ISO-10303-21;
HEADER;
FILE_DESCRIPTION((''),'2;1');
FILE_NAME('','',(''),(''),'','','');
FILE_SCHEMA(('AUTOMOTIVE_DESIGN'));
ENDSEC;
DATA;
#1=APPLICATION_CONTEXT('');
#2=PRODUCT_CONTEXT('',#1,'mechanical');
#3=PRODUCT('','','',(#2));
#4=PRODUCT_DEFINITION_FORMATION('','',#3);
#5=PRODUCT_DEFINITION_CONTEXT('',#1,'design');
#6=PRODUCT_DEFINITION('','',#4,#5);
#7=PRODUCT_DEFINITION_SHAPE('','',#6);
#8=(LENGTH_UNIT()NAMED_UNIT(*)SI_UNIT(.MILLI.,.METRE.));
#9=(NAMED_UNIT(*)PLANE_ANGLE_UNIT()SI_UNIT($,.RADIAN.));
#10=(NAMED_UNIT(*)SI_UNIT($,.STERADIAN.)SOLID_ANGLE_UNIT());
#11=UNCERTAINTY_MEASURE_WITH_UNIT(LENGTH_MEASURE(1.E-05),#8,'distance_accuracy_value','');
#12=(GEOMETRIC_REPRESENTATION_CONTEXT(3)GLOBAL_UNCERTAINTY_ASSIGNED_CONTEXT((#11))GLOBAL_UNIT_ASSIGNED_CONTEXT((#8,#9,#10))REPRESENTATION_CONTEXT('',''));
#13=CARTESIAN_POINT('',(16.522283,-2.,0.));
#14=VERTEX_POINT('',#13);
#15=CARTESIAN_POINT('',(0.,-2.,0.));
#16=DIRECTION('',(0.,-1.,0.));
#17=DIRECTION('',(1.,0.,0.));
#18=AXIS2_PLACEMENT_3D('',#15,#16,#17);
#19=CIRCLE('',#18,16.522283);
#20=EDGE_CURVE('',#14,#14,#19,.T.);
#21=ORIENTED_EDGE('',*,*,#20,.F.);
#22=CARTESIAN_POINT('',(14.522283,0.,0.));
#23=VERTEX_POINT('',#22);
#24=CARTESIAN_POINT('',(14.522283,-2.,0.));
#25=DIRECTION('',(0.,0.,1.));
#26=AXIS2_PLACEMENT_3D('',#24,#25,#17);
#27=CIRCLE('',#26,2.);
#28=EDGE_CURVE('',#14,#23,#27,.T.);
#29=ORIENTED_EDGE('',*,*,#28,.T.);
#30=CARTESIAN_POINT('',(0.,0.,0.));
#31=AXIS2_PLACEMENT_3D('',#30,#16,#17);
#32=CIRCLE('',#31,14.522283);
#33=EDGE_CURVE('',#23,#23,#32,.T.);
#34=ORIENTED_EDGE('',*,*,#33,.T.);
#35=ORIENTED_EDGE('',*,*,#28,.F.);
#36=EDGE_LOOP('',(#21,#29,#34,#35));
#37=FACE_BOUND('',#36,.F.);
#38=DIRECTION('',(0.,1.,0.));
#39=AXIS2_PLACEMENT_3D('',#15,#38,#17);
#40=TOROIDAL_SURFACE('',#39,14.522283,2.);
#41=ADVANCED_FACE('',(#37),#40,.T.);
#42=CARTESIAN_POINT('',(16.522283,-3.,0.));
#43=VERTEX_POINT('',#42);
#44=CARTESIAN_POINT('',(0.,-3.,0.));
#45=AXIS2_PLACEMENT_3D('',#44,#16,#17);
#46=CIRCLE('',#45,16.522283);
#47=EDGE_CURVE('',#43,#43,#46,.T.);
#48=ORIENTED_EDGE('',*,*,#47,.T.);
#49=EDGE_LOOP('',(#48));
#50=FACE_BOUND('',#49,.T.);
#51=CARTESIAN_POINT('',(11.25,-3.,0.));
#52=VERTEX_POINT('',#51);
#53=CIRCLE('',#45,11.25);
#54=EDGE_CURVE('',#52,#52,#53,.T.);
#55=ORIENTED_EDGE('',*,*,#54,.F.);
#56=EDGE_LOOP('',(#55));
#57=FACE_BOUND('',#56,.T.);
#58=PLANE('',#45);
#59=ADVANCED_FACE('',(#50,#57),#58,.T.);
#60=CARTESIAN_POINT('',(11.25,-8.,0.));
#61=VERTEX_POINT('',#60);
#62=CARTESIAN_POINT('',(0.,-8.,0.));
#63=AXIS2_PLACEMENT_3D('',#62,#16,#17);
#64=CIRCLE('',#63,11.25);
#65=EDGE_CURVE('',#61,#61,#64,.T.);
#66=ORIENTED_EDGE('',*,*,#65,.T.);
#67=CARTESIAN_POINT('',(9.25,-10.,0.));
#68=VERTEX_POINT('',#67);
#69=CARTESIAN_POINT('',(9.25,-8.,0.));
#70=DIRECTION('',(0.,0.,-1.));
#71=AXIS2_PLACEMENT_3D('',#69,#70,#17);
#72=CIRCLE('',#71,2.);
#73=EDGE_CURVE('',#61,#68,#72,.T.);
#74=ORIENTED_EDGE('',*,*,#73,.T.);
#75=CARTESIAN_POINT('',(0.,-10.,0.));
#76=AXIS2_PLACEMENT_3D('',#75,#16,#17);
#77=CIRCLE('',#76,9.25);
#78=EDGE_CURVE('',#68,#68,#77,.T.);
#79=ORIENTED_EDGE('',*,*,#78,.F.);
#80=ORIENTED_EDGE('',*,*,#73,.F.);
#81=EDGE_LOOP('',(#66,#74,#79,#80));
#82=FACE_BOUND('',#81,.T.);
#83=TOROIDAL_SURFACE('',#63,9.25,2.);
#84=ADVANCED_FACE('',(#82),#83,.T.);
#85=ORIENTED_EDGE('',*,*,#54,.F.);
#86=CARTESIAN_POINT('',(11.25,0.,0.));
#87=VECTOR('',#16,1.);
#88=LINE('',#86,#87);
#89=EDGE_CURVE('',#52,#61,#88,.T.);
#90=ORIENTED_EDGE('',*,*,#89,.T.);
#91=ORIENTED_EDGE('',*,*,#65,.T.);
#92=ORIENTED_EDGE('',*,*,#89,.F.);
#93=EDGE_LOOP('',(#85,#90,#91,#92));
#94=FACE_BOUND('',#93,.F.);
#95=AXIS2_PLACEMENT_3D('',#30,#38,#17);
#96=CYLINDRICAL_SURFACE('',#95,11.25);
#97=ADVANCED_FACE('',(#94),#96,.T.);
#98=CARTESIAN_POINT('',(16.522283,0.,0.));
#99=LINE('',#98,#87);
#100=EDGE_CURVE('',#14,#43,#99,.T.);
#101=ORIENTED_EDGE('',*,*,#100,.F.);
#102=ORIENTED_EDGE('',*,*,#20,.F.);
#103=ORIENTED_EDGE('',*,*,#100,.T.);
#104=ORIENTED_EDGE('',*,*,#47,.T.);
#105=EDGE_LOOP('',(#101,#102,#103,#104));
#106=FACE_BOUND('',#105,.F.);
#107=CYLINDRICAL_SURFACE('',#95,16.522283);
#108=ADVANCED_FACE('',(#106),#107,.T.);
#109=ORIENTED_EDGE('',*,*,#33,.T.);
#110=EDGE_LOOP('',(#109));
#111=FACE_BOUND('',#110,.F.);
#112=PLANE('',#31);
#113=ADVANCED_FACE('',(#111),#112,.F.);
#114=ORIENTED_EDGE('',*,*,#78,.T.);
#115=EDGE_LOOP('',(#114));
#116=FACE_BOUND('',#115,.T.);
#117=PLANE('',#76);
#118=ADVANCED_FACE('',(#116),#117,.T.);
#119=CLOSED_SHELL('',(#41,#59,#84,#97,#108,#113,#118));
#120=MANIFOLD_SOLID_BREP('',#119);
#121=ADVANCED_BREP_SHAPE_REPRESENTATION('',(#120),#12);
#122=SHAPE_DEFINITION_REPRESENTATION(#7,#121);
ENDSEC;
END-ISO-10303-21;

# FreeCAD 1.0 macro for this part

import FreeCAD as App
import Part
import Sketcher
from FreeCAD import Vector
Q = App.Units.Quantity


def edges_at(feature, points):
    """Names of the edges that pass closest to the given points."""
    edges = feature.Shape.Edges
    near = lambda p: min(range(len(edges)), key=lambda i: edges[i].distToShape(Part.Vertex(*p))[0])
    return sorted({f"Edge{near(p) + 1}" for p in points})

doc = App.newDocument("Part")
body = doc.addObject("PartDesign::Body", "Body")

sketch1 = body.newObject("Sketcher::SketchObject", "Sketch")
sketch1.AttachmentSupport = (doc.getObject("XZ_Plane"), [""])
sketch1.MapMode = "FlatFace"
sketch1.addGeometry(Part.Circle(Vector(0, 0, 0), Vector(0, 0, 1), 16.522283), False)
sketch1.addGeometry(Part.Circle(Vector(0, 0, 0), Vector(0, 0, 1), 11.25), False)
sketch1.addConstraint(Sketcher.Constraint("Coincident", 0, 3, -1, 1))
sketch1.addConstraint(Sketcher.Constraint("Coincident", 1, 3, -1, 1))
sketch1.addConstraint(Sketcher.Constraint("Diameter", 1, Q("22.5 mm")))
sketch1.addConstraint(Sketcher.Constraint("Diameter", 0, Q("33.044566 mm")))
pad1 = body.newObject("PartDesign::Pad", "Pad")
pad1.Profile = sketch1
pad1.Length = 3

sketch2 = body.newObject("Sketcher::SketchObject", "Sketch001")
sketch2.AttachmentSupport = (doc.getObject("XZ_Plane"), [""])
sketch2.MapMode = "FlatFace"
sketch2.addGeometry(Part.Circle(Vector(0, 0, 0), Vector(0, 0, 1), 11.25), False)
sketch2.addConstraint(Sketcher.Constraint("Coincident", 0, 3, -1, 1))
sketch2.addConstraint(Sketcher.Constraint("Diameter", 0, Q("22.5 mm")))
pad2 = body.newObject("PartDesign::Pad", "Pad001")
pad2.Profile = sketch2
pad2.Length = 10
doc.recompute()

fillet = body.newObject("PartDesign::Fillet", "Fillet")
fillet.Base = (pad2, edges_at(pad2, [(-16.522, 0, 0)]))
fillet.Radius = 2
doc.recompute()

fillet2 = body.newObject("PartDesign::Fillet", "Fillet001")
fillet2.Base = (fillet, edges_at(fillet, [(-11.25, -10, 0)]))
fillet2.Radius = 2

doc.recompute()
